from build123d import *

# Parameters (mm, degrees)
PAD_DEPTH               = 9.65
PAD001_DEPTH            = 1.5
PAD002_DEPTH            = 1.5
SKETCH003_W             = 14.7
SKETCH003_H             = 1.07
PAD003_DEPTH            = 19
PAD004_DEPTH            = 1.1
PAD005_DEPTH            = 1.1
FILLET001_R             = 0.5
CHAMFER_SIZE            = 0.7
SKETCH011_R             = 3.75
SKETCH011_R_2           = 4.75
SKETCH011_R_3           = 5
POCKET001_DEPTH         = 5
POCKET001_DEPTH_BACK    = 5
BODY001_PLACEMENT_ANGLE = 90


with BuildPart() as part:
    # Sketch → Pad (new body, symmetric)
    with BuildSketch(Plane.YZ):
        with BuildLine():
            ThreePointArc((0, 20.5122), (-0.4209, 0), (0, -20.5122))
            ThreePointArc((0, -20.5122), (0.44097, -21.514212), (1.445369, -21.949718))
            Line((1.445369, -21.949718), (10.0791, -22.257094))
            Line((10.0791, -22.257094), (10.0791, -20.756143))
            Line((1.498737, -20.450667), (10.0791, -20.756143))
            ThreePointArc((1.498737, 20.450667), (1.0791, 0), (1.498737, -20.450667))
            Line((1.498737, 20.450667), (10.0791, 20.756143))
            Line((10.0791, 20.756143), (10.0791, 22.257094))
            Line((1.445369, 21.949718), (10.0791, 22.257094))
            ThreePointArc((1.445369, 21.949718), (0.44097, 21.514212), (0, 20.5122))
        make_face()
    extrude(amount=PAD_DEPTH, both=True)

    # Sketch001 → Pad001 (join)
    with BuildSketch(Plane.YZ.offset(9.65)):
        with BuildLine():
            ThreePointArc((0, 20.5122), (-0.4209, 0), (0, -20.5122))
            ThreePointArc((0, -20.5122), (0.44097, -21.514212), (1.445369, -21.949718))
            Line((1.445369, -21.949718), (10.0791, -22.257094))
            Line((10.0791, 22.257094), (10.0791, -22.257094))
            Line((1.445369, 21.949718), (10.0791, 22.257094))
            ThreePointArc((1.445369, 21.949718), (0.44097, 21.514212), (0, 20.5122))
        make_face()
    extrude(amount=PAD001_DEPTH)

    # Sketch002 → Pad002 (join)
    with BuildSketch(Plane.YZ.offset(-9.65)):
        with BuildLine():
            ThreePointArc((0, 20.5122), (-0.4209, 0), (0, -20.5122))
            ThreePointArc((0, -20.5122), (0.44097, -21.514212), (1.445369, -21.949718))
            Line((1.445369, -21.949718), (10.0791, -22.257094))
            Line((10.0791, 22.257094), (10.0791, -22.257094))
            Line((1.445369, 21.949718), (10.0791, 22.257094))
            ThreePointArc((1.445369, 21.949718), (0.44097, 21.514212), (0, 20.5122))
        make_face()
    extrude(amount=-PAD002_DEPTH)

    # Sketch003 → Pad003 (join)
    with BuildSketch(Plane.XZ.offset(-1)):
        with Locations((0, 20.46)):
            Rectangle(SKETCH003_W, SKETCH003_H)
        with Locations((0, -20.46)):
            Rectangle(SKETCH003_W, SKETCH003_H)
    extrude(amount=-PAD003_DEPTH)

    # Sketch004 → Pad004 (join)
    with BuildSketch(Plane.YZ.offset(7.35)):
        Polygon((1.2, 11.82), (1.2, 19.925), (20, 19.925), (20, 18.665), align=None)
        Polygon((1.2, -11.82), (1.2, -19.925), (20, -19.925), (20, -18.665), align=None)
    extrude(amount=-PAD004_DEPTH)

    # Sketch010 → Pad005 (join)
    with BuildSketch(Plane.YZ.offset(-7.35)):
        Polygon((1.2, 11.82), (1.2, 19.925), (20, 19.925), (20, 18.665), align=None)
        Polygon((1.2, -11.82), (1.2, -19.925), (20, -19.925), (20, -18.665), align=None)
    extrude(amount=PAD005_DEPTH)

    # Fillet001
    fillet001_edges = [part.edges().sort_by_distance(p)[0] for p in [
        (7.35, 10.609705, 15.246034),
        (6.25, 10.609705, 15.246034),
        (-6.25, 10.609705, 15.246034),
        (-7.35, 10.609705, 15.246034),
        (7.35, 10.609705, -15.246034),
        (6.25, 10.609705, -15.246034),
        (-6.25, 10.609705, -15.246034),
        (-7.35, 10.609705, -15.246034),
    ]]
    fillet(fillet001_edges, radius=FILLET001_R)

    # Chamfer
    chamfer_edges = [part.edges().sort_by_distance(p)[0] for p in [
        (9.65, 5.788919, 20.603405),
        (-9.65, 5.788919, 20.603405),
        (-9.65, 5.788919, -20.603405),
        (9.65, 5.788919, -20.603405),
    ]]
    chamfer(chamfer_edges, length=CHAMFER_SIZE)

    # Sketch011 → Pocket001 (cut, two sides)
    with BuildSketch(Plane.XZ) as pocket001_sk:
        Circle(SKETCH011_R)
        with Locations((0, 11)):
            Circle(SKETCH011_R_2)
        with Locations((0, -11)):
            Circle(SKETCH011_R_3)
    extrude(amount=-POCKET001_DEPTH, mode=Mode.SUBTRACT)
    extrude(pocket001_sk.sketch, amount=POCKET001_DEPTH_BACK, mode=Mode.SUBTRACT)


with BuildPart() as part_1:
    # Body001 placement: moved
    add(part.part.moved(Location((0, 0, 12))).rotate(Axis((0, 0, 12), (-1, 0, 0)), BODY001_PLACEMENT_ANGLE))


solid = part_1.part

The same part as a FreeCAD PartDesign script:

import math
import FreeCAD as App
import Part
import Sketcher
from FreeCAD import Vector


def edges_at(feature, points):
    """Names of the edges that pass closest to the given points."""
    edges = feature.Shape.Edges
    near = lambda p: min(range(len(edges)), key=lambda i: edges[i].distToShape(Part.Vertex(*p))[0])
    return sorted({f"Edge{near(p) + 1}" for p in points})


def add_polygon(sketch, points):
    """Adds a closed chain of lines whose ends are joined by coincident constraints."""
    first, n = sketch.GeometryCount, len(points)
    for a, b in zip(points, points[1:] + points[:1]):
        sketch.addGeometry(Part.LineSegment(App.Vector(*a, 0), App.Vector(*b, 0)), False)
    for i in range(n):
        sketch.addConstraint(Sketcher.Constraint("Coincident", first + i, 2, first + (i + 1) % n, 1))

doc = App.newDocument("Part")
body = doc.addObject("PartDesign::Body", "Body")

# Sketch on YZ plane
sketch1 = body.newObject("Sketcher::SketchObject", "Sketch")
sketch1.AttachmentSupport = (doc.getObject("YZ_Plane"), [""])
sketch1.MapMode = "FlatFace"
sketch1.addGeometry(Part.ArcOfCircle(Part.Circle(Vector(499.611775, 0, 0), Vector(0, 0, 1), 500.032675), math.radians(177.648969), math.radians(182.351031)), False)
sketch1.addGeometry(Part.ArcOfCircle(Part.Circle(Vector(1.498739, -20.450666, 0), Vector(0, 0, 1), 1.500002), math.radians(-177.648926), math.radians(-92.039007)), False)
sketch1.addGeometry(Part.LineSegment(Vector(1.445369, -21.949718, 0), Vector(10.0791, -22.257094, 0)), False)
sketch1.addGeometry(Part.LineSegment(Vector(10.0791, -22.257094, 0), Vector(10.0791, -20.756143, 0)), False)
sketch1.addGeometry(Part.LineSegment(Vector(10.0791, -20.756143, 0), Vector(1.498737, -20.450667, 0)), False)
sketch1.addGeometry(Part.ArcOfCircle(Part.Circle(Vector(499.612208, 0, 0), Vector(0, 0, 1), 498.533108), math.radians(177.648971), math.radians(182.351029)), False)
sketch1.addGeometry(Part.LineSegment(Vector(1.498737, 20.450667, 0), Vector(10.0791, 20.756143, 0)), False)
sketch1.addGeometry(Part.LineSegment(Vector(10.0791, 20.756143, 0), Vector(10.0791, 22.257094, 0)), False)
sketch1.addGeometry(Part.LineSegment(Vector(10.0791, 22.257094, 0), Vector(1.445369, 21.949718, 0)), False)
sketch1.addGeometry(Part.ArcOfCircle(Part.Circle(Vector(1.498739, 20.450666, 0), Vector(0, 0, 1), 1.500002), math.radians(92.039007), math.radians(177.648926)), False)
sketch1.addConstraint(Sketcher.Constraint("Tangent", 0, 2, 1, 1))
sketch1.addConstraint(Sketcher.Constraint("Tangent", 1, 2, 2, 1))
sketch1.addConstraint(Sketcher.Constraint("Coincident", 2, 2, 3, 1))
sketch1.addConstraint(Sketcher.Constraint("Coincident", 3, 2, 4, 1))
sketch1.addConstraint(Sketcher.Constraint("Coincident", 4, 2, 5, 2))
sketch1.addConstraint(Sketcher.Constraint("Coincident", 5, 1, 6, 1))
sketch1.addConstraint(Sketcher.Constraint("Coincident", 6, 2, 7, 1))
sketch1.addConstraint(Sketcher.Constraint("Coincident", 7, 2, 8, 1))
sketch1.addConstraint(Sketcher.Constraint("Tangent", 8, 2, 9, 1))
sketch1.addConstraint(Sketcher.Constraint("Tangent", 9, 2, 0, 1))
sketch1.addConstraint(Sketcher.Constraint("Vertical", 3))
sketch1.addConstraint(Sketcher.Constraint("Vertical", 7))
sketch1.addConstraint(Sketcher.Constraint("Coincident", 4, 2, 1, 3))
sketch1.addConstraint(Sketcher.Constraint("Coincident", 5, 1, 9, 3))
sketch1.addConstraint(Sketcher.Constraint("Equal", 1, 9))
sketch1.addConstraint(Sketcher.Constraint("Symmetric", 1, 3, 9, 3, -1))
sketch1.addConstraint(Sketcher.Constraint("Symmetric", 3, 2, 6, 2, -1))
sketch1.addConstraint(Sketcher.Constraint("PointOnObject", 0, 2, -2))
sketch1.addConstraint(Sketcher.Constraint("Parallel", 2, 4))
sketch1.addConstraint(Sketcher.Constraint("Parallel", 6, 8))
sketch1.addConstraint(Sketcher.Constraint("Radius", 1, 1.500002))
sketch1.addConstraint(Sketcher.Constraint("Radius", 5, 498.533108))
sketch1.addConstraint(Sketcher.Constraint("Radius", 0, 500.032675))
sketch1.addConstraint(Sketcher.Constraint("Distance", 2, 8.639201))
sketch1.addConstraint(Sketcher.Constraint("Distance", 4, 8.585799))
sketch1.addConstraint(Sketcher.Constraint("DistanceY", -1, 1, 9, 2, 20.5122))
pad1 = body.newObject("PartDesign::Pad", "Pad")
pad1.Profile = sketch1
pad1.Length = 19.3
pad1.Midplane = True

# Sketch on YZ plane
sketch2 = body.newObject("Sketcher::SketchObject", "Sketch001")
sketch2.AttachmentSupport = (doc.getObject("YZ_Plane"), [""])
sketch2.MapMode = "FlatFace"
sketch2.AttachmentOffset = App.Placement(Vector(0, 0, 9.65), App.Rotation())
sketch2.addGeometry(Part.ArcOfCircle(Part.Circle(Vector(499.611775, 0, 0), Vector(0, 0, 1), 500.032675), math.radians(177.648969), math.radians(182.351031)), False)
sketch2.addGeometry(Part.ArcOfCircle(Part.Circle(Vector(1.498739, -20.450666, 0), Vector(0, 0, 1), 1.500002), math.radians(-177.648926), math.radians(-92.039007)), False)
sketch2.addGeometry(Part.LineSegment(Vector(1.445369, -21.949718, 0), Vector(10.0791, -22.257094, 0)), False)
sketch2.addGeometry(Part.LineSegment(Vector(10.0791, -22.257094, 0), Vector(10.0791, 22.257094, 0)), False)
sketch2.addGeometry(Part.LineSegment(Vector(10.0791, 22.257094, 0), Vector(1.445369, 21.949718, 0)), False)
sketch2.addGeometry(Part.ArcOfCircle(Part.Circle(Vector(1.498739, 20.450666, 0), Vector(0, 0, 1), 1.500002), math.radians(92.039007), math.radians(177.648926)), False)
sketch2.addConstraint(Sketcher.Constraint("Tangent", 0, 2, 1, 1))
sketch2.addConstraint(Sketcher.Constraint("Tangent", 1, 2, 2, 1))
sketch2.addConstraint(Sketcher.Constraint("Coincident", 2, 2, 3, 1))
sketch2.addConstraint(Sketcher.Constraint("Coincident", 3, 2, 4, 1))
sketch2.addConstraint(Sketcher.Constraint("Tangent", 4, 2, 5, 1))
sketch2.addConstraint(Sketcher.Constraint("Tangent", 5, 2, 0, 1))
sketch2.addConstraint(Sketcher.Constraint("Vertical", 3))
sketch2.addConstraint(Sketcher.Constraint("Equal", 1, 5))
sketch2.addConstraint(Sketcher.Constraint("Symmetric", 1, 3, 5, 3, -1))
sketch2.addConstraint(Sketcher.Constraint("PointOnObject", 0, 2, -2))
sketch2.addConstraint(Sketcher.Constraint("Vertical", 1, 2, 4, 2))
sketch2.addConstraint(Sketcher.Constraint("Radius", 1, 1.500002))
sketch2.addConstraint(Sketcher.Constraint("Radius", 0, 500.032675))
sketch2.addConstraint(Sketcher.Constraint("Distance", 2, 8.639201))
sketch2.addConstraint(Sketcher.Constraint("DistanceX", -1, 1, 2, 2, 10.0791))
sketch2.addConstraint(Sketcher.Constraint("DistanceY", -1, 1, 5, 2, 20.5122))
pad2 = body.newObject("PartDesign::Pad", "Pad001")
pad2.Profile = sketch2
pad2.Length = 1.5

# Sketch on YZ plane
sketch3 = body.newObject("Sketcher::SketchObject", "Sketch002")
sketch3.AttachmentSupport = (doc.getObject("YZ_Plane"), [""])
sketch3.MapMode = "FlatFace"
sketch3.AttachmentOffset = App.Placement(Vector(0, 0, -9.65), App.Rotation())
sketch3.addGeometry(Part.ArcOfCircle(Part.Circle(Vector(499.611775, 0, 0), Vector(0, 0, 1), 500.032675), math.radians(177.648969), math.radians(182.351031)), False)
sketch3.addGeometry(Part.ArcOfCircle(Part.Circle(Vector(1.498739, -20.450666, 0), Vector(0, 0, 1), 1.500002), math.radians(-177.648926), math.radians(-92.039007)), False)
sketch3.addGeometry(Part.LineSegment(Vector(1.445369, -21.949718, 0), Vector(10.0791, -22.257094, 0)), False)
sketch3.addGeometry(Part.LineSegment(Vector(10.0791, -22.257094, 0), Vector(10.0791, 22.257094, 0)), False)
sketch3.addGeometry(Part.LineSegment(Vector(10.0791, 22.257094, 0), Vector(1.445369, 21.949718, 0)), False)
sketch3.addGeometry(Part.ArcOfCircle(Part.Circle(Vector(1.498739, 20.450666, 0), Vector(0, 0, 1), 1.500002), math.radians(92.039007), math.radians(177.648926)), False)
sketch3.addConstraint(Sketcher.Constraint("Tangent", 0, 2, 1, 1))
sketch3.addConstraint(Sketcher.Constraint("Tangent", 1, 2, 2, 1))
sketch3.addConstraint(Sketcher.Constraint("Coincident", 2, 2, 3, 1))
sketch3.addConstraint(Sketcher.Constraint("Coincident", 3, 2, 4, 1))
sketch3.addConstraint(Sketcher.Constraint("Tangent", 4, 2, 5, 1))
sketch3.addConstraint(Sketcher.Constraint("Tangent", 5, 2, 0, 1))
sketch3.addConstraint(Sketcher.Constraint("Vertical", 3))
sketch3.addConstraint(Sketcher.Constraint("Equal", 1, 5))
sketch3.addConstraint(Sketcher.Constraint("Symmetric", 1, 3, 5, 3, -1))
sketch3.addConstraint(Sketcher.Constraint("PointOnObject", 0, 2, -2))
sketch3.addConstraint(Sketcher.Constraint("Vertical", 1, 2, 4, 2))
sketch3.addConstraint(Sketcher.Constraint("Radius", 1, 1.500002))
sketch3.addConstraint(Sketcher.Constraint("Radius", 0, 500.032675))
sketch3.addConstraint(Sketcher.Constraint("Distance", 2, 8.639201))
sketch3.addConstraint(Sketcher.Constraint("DistanceX", -1, 1, 2, 2, 10.0791))
sketch3.addConstraint(Sketcher.Constraint("DistanceY", -1, 1, 5, 2, 20.5122))
pad3 = body.newObject("PartDesign::Pad", "Pad002")
pad3.Profile = sketch3
pad3.Length = 1.5
pad3.Reversed = True

# Sketch on XZ plane
sketch4 = body.newObject("Sketcher::SketchObject", "Sketch003")
sketch4.AttachmentSupport = (doc.getObject("XZ_Plane"), [""])
sketch4.MapMode = "FlatFace"
sketch4.AttachmentOffset = App.Placement(Vector(0, 0, -1), App.Rotation())
add_polygon(sketch4, [(-7.35, 20.995), (-7.35, 19.925), (7.35, 19.925), (7.35, 20.995)])  # lines 0-3
add_polygon(sketch4, [(-7.35, -19.925), (-7.35, -20.995), (7.35, -20.995), (7.35, -19.925)])  # lines 4-7
sketch4.addConstraint(Sketcher.Constraint("Vertical", 0))
sketch4.addConstraint(Sketcher.Constraint("Horizontal", 1))
sketch4.addConstraint(Sketcher.Constraint("Vertical", 2))
sketch4.addConstraint(Sketcher.Constraint("Horizontal", 3))
sketch4.addConstraint(Sketcher.Constraint("Vertical", 4))
sketch4.addConstraint(Sketcher.Constraint("Horizontal", 5))
sketch4.addConstraint(Sketcher.Constraint("Vertical", 6))
sketch4.addConstraint(Sketcher.Constraint("Horizontal", 7))
sketch4.addConstraint(Sketcher.Constraint("Symmetric", 2, 2, 4, 2, -1, 1))
sketch4.addConstraint(Sketcher.Constraint("Symmetric", 0, 2, 6, 2, -1, 1))
sketch4.addConstraint(Sketcher.Constraint("Vertical", 3, 2, 4, 2))
sketch4.addConstraint(Sketcher.Constraint("DistanceX", 1, 1, 1, 2, 14.7))
sketch4.addConstraint(Sketcher.Constraint("DistanceY", 0, 2, 0, 1, 1.07))
sketch4.addConstraint(Sketcher.Constraint("DistanceY", 4, 2, 0, 2, 40.92))
pad4 = body.newObject("PartDesign::Pad", "Pad003")
pad4.Profile = sketch4
pad4.Length = 19
pad4.Reversed = True

# Sketch on YZ plane
sketch5 = body.newObject("Sketcher::SketchObject", "Sketch004")
sketch5.AttachmentSupport = (doc.getObject("YZ_Plane"), [""])
sketch5.MapMode = "FlatFace"
sketch5.AttachmentOffset = App.Placement(Vector(0, 0, 7.35), App.Rotation())
add_polygon(sketch5, [(1.2, 19.925), (1.2, 11.82), (20, 18.665), (20, 19.925)])  # lines 0-3
add_polygon(sketch5, [(1.2, -11.82), (1.2, -19.925), (20, -19.925), (20, -18.665)])  # lines 4-7
sketch5.addConstraint(Sketcher.Constraint("Vertical", 0))
sketch5.addConstraint(Sketcher.Constraint("Vertical", 2))
sketch5.addConstraint(Sketcher.Constraint("Horizontal", 3))
sketch5.addConstraint(Sketcher.Constraint("Vertical", 4))
sketch5.addConstraint(Sketcher.Constraint("Horizontal", 5))
sketch5.addConstraint(Sketcher.Constraint("Vertical", 6))
sketch5.addConstraint(Sketcher.Constraint("Symmetric", 3, 2, 4, 2, -1))
sketch5.addConstraint(Sketcher.Constraint("Symmetric", 1, 2, 6, 2, -1))
sketch5.addConstraint(Sketcher.Constraint("Equal", 0, 4))
sketch5.addConstraint(Sketcher.Constraint("DistanceX", 3, 2, 3, 1, 18.8))
sketch5.addConstraint(Sketcher.Constraint("DistanceX", -1, 1, 1, 2, 20.0))
sketch5.addConstraint(Sketcher.Constraint("DistanceY", 2, 1, 2, 2, 1.26))
sketch5.addConstraint(Sketcher.Constraint("DistanceY", 0, 2, 0, 1, 8.105))
sketch5.addConstraint(Sketcher.Constraint("DistanceY", -1, 1, 0, 2, 11.82))
pad5 = body.newObject("PartDesign::Pad", "Pad004")
pad5.Profile = sketch5
pad5.Length = 1.1
pad5.Reversed = True

# Sketch on YZ plane
sketch6 = body.newObject("Sketcher::SketchObject", "Sketch005")
sketch6.AttachmentSupport = (doc.getObject("YZ_Plane"), [""])
sketch6.MapMode = "FlatFace"
sketch6.AttachmentOffset = App.Placement(Vector(0, 0, -7.35), App.Rotation())
add_polygon(sketch6, [(1.2, 19.925), (1.2, 11.82), (20, 18.665), (20, 19.925)])  # lines 0-3
add_polygon(sketch6, [(1.2, -11.82), (1.2, -19.925), (20, -19.925), (20, -18.665)])  # lines 4-7
sketch6.addConstraint(Sketcher.Constraint("Vertical", 0))
sketch6.addConstraint(Sketcher.Constraint("Vertical", 2))
sketch6.addConstraint(Sketcher.Constraint("Horizontal", 3))
sketch6.addConstraint(Sketcher.Constraint("Vertical", 4))
sketch6.addConstraint(Sketcher.Constraint("Horizontal", 5))
sketch6.addConstraint(Sketcher.Constraint("Vertical", 6))
sketch6.addConstraint(Sketcher.Constraint("Symmetric", 3, 2, 4, 2, -1))
sketch6.addConstraint(Sketcher.Constraint("Symmetric", 1, 2, 6, 2, -1))
sketch6.addConstraint(Sketcher.Constraint("Equal", 0, 4))
sketch6.addConstraint(Sketcher.Constraint("DistanceX", 3, 2, 3, 1, 18.8))
sketch6.addConstraint(Sketcher.Constraint("DistanceX", -1, 1, 1, 2, 20.0))
sketch6.addConstraint(Sketcher.Constraint("DistanceY", 2, 1, 2, 2, 1.26))
sketch6.addConstraint(Sketcher.Constraint("DistanceY", 0, 2, 0, 1, 8.105))
sketch6.addConstraint(Sketcher.Constraint("DistanceY", -1, 1, 0, 2, 11.82))
pad6 = body.newObject("PartDesign::Pad", "Pad005")
pad6.Profile = sketch6
pad6.Length = 1.1
doc.recompute()

fillet = body.newObject("PartDesign::Fillet", "Fillet")
fillet.Base = (pad6, edges_at(pad6, [
    (7.35, 10.61, 15.246),
    (6.25, 10.61, 15.246),
    (-6.25, 10.61, 15.246),
    (-7.35, 10.61, 15.246),
    (7.35, 10.61, -15.246),
    (6.25, 10.61, -15.246),
    (-6.25, 10.61, -15.246),
    (-7.35, 10.61, -15.246),
]))
fillet.Radius = 0.5
doc.recompute()

chamfer = body.newObject("PartDesign::Chamfer", "Chamfer")
chamfer.Base = (fillet, edges_at(fillet, [
    (9.65, 5.789, 20.603),
    (-9.65, 5.789, 20.603),
    (-9.65, 5.789, -20.603),
    (9.65, 5.789, -20.603),
]))
chamfer.Size = 0.7

# Sketch on XZ plane
sketch7 = body.newObject("Sketcher::SketchObject", "Sketch006")
sketch7.AttachmentSupport = (doc.getObject("XZ_Plane"), [""])
sketch7.MapMode = "FlatFace"
sketch7.addGeometry(Part.Circle(Vector(0, 0, 0), Vector(0, 0, 1), 3.75), False)
sketch7.addGeometry(Part.Circle(Vector(0, 11, 0), Vector(0, 0, 1), 4.75), False)
sketch7.addGeometry(Part.Circle(Vector(0, -11, 0), Vector(0, 0, 1), 5), False)
sketch7.addConstraint(Sketcher.Constraint("Coincident", 0, 3, -1, 1))
sketch7.addConstraint(Sketcher.Constraint("Symmetric", 1, 3, 2, 3, -1, 1))
sketch7.addConstraint(Sketcher.Constraint("PointOnObject", 1, 3, -2))
sketch7.addConstraint(Sketcher.Constraint("Diameter", 2, 10.0))
sketch7.addConstraint(Sketcher.Constraint("Diameter", 0, 7.5))
sketch7.addConstraint(Sketcher.Constraint("Diameter", 1, 9.5))
sketch7.addConstraint(Sketcher.Constraint("DistanceY", -1, 1, 1, 3, 11.0))
pocket1 = body.newObject("PartDesign::Pocket", "Pocket")
pocket1.Profile = sketch7
pocket1.Type = "ThroughAll"
pocket1.Midplane = True
body2 = doc.addObject("PartDesign::Body", "Body001")
doc.recompute()

body.Placement = App.Placement(Vector(0, 0, 12), App.Rotation(Vector(-1, 0, 0), 90))
boolean = body2.newObject("PartDesign::Boolean", "Boolean")
boolean.Type = "Fuse"
boolean.addObjects([body])

doc.recompute()
